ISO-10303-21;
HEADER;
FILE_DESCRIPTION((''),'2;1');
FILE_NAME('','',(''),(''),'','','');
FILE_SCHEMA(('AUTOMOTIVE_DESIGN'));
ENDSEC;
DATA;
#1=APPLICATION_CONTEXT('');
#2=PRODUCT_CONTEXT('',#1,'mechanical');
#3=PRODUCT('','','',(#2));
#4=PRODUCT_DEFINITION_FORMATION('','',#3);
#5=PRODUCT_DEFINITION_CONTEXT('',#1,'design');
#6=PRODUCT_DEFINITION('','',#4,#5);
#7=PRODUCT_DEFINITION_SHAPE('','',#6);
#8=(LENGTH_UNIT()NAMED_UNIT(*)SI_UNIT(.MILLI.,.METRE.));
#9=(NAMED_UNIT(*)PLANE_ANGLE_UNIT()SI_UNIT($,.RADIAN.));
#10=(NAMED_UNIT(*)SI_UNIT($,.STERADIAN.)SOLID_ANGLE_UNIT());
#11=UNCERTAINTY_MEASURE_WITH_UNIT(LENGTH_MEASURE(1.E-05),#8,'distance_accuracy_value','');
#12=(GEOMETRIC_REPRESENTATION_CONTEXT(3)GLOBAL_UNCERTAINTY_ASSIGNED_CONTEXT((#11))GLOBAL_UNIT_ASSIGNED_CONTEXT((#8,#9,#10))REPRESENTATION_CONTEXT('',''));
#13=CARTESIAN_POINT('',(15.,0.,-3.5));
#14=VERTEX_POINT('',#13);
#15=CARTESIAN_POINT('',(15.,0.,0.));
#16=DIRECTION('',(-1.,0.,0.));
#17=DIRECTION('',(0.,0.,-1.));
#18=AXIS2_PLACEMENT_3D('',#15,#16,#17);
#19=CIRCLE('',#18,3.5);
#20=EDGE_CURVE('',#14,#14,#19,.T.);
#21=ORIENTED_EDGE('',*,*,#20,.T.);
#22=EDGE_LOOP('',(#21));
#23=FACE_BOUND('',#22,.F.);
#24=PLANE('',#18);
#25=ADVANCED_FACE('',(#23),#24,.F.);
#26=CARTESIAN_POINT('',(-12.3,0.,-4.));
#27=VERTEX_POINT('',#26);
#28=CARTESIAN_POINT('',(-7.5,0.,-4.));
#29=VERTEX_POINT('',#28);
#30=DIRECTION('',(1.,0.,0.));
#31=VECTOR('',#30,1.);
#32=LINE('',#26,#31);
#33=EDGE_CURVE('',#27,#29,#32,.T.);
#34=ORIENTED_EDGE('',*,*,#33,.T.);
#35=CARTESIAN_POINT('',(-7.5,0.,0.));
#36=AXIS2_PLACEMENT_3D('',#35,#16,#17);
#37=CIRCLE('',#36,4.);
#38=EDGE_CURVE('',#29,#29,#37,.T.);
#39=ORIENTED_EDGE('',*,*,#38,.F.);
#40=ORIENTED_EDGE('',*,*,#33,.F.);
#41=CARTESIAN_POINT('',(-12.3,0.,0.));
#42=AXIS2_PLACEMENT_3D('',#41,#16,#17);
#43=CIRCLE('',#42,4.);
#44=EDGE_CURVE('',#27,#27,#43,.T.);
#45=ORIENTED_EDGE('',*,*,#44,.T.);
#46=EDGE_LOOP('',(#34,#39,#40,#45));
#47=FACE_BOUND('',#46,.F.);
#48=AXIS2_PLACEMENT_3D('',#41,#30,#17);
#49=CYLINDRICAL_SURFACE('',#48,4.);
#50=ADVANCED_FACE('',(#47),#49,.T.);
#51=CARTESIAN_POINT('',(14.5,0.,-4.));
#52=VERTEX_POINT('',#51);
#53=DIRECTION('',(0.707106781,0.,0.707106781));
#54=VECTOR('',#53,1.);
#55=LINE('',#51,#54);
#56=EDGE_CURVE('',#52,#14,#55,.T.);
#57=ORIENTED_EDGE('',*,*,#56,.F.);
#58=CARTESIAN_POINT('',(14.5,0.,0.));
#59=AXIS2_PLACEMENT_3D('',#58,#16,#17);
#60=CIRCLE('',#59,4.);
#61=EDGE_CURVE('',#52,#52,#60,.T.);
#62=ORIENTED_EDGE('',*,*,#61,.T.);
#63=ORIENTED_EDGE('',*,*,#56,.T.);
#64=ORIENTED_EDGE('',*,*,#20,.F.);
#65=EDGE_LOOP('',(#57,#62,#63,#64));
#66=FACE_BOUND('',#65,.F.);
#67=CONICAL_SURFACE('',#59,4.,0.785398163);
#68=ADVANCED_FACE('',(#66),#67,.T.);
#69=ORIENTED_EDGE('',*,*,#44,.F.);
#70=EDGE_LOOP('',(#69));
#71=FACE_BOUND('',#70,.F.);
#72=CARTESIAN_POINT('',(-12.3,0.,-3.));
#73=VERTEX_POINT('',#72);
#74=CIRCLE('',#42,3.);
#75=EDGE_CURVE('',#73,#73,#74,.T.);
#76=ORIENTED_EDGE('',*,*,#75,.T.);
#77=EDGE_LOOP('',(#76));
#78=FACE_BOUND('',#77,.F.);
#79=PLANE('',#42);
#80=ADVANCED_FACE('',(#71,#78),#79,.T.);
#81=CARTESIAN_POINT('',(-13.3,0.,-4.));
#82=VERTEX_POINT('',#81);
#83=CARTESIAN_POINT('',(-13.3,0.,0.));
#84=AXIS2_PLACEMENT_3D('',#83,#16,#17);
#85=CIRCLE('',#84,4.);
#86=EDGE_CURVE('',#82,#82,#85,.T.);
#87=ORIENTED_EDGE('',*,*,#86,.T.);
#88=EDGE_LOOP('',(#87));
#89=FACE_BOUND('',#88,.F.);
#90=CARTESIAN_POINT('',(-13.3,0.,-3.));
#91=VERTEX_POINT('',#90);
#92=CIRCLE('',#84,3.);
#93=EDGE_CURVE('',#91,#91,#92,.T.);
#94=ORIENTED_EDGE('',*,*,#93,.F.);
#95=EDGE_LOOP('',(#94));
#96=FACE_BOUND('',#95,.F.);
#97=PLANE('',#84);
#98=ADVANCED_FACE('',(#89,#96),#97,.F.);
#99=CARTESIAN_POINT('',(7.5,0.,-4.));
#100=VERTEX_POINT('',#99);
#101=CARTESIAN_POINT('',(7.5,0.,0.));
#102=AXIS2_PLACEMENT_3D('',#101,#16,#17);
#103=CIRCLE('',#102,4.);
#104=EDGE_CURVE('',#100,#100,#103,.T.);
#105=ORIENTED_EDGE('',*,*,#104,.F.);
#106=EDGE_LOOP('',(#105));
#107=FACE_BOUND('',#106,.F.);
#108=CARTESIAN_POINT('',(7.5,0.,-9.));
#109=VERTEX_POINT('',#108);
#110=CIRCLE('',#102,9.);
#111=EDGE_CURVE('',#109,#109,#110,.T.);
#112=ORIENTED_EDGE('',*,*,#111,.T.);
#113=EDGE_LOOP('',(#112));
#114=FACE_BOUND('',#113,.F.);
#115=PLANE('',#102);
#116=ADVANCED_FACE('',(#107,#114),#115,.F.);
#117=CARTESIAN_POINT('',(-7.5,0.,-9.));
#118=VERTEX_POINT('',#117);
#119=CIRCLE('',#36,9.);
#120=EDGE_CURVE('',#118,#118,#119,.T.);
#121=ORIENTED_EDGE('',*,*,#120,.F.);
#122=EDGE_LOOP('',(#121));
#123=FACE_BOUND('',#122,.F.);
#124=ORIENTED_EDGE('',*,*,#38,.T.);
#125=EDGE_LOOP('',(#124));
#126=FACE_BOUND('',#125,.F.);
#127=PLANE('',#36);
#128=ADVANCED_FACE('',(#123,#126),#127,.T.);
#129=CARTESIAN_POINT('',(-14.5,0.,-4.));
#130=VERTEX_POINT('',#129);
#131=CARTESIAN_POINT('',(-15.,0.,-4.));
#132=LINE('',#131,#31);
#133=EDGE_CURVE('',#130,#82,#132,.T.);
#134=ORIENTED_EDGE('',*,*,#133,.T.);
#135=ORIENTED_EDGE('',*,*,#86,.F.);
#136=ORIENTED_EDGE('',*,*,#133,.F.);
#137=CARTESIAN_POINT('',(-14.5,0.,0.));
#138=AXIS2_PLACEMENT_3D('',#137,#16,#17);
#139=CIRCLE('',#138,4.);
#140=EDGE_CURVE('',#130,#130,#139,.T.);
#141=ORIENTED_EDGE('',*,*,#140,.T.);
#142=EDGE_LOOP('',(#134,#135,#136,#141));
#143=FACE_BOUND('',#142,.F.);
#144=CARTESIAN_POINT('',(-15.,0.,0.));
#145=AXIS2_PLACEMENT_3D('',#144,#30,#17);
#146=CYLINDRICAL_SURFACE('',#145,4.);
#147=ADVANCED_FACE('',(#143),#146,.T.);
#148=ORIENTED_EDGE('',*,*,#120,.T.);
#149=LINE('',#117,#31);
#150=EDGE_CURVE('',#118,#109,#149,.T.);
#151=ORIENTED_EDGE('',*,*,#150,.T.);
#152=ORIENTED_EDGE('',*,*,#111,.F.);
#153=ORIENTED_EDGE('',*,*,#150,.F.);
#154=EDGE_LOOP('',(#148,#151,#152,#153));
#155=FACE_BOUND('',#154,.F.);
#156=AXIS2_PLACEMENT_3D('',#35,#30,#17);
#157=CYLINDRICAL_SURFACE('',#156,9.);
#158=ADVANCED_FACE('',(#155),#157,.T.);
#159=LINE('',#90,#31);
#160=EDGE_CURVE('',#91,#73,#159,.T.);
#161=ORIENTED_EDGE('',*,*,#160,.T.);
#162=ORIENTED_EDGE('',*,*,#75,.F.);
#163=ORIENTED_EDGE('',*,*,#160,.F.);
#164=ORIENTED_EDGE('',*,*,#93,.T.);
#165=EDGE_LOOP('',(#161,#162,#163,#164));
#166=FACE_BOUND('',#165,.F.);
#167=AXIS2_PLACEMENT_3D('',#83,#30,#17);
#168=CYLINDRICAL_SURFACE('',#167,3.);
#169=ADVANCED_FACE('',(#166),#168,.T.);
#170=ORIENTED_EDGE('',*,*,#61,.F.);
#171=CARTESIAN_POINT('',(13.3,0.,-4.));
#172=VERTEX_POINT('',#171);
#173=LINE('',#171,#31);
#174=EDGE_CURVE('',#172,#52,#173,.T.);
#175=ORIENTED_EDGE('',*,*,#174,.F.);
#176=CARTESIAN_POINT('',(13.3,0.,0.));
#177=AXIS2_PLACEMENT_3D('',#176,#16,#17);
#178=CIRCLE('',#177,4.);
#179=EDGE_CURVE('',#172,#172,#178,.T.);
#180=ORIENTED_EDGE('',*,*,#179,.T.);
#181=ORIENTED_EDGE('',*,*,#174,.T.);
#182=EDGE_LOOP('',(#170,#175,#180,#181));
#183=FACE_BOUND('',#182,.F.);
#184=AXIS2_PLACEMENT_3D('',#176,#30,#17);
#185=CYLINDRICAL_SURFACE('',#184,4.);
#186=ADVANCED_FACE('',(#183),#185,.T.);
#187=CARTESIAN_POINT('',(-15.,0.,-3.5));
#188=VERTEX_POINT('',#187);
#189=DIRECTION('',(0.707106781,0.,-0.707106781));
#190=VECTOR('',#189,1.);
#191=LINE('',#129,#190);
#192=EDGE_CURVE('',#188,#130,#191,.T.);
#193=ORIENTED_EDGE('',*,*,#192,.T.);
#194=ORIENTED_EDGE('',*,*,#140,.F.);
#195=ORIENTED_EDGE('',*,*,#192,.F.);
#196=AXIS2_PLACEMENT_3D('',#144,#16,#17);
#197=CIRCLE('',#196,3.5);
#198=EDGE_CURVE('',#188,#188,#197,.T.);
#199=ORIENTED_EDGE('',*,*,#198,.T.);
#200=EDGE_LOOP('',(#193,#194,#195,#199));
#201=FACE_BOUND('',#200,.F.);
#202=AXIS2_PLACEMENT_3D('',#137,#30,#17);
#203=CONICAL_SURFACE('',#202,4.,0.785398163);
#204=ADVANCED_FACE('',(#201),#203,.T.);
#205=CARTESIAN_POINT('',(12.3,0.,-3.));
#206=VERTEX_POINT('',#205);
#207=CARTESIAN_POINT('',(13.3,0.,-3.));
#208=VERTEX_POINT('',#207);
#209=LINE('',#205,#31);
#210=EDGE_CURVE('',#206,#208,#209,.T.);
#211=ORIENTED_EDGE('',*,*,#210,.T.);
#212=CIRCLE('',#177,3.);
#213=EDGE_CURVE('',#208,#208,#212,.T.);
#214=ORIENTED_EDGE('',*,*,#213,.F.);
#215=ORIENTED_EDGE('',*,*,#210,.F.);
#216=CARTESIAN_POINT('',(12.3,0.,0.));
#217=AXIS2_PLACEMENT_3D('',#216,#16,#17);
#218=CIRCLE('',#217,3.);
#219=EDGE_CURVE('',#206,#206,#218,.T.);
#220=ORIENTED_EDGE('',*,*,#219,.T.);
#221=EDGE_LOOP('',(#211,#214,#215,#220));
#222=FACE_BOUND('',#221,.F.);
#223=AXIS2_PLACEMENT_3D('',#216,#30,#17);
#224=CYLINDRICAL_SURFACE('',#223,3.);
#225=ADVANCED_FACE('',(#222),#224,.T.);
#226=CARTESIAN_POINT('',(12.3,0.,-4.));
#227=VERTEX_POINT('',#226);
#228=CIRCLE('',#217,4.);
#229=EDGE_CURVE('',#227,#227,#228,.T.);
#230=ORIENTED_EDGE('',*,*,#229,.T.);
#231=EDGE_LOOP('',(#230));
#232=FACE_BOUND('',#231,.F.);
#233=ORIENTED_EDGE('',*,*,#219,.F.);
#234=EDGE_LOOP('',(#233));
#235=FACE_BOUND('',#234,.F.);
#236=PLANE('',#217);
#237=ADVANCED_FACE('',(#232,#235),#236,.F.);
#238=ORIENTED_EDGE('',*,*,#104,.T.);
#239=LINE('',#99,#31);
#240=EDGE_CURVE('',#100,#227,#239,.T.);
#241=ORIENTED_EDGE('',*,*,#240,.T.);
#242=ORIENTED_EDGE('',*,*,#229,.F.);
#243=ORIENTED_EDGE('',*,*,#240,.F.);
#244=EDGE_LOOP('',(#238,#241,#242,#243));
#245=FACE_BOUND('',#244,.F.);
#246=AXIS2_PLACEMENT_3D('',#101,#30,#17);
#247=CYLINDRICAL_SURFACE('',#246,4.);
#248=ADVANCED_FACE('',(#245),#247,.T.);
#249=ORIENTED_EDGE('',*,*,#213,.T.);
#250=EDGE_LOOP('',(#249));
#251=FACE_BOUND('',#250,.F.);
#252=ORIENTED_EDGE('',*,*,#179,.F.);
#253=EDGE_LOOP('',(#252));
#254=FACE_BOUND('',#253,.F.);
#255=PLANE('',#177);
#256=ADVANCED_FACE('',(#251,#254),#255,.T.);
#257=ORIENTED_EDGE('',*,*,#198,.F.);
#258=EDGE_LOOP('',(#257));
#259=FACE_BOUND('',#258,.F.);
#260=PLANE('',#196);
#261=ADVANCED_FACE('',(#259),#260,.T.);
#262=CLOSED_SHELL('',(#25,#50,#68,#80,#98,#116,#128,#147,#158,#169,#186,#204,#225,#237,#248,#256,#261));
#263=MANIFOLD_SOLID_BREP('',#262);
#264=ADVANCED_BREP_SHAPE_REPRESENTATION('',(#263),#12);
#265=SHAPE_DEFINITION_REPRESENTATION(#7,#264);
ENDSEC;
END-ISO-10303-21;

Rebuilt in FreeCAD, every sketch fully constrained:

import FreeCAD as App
import Part
import Sketcher
from FreeCAD import Vector
Q = App.Units.Quantity


def edges_at(feature, points):
    """Names of the edges that pass closest to the given points."""
    edges = feature.Shape.Edges
    near = lambda p: min(range(len(edges)), key=lambda i: edges[i].distToShape(Part.Vertex(*p))[0])
    return sorted({f"Edge{near(p) + 1}" for p in points})

doc = App.newDocument("Part")
body = doc.addObject("PartDesign::Body", "Body")

sketch1 = body.newObject("Sketcher::SketchObject", "Sketch")
sketch1.AttachmentSupport = (doc.getObject("XZ_Plane"), [""])
sketch1.MapMode = "FlatFace"
sketch1.addGeometry([
    Part.LineSegment(Vector(15, 0, 0), Vector(-15, 0, 0)),
    Part.LineSegment(Vector(-15, 0, 0), Vector(-15, -4, 0)),
    Part.LineSegment(Vector(-15, -4, 0), Vector(-13.3, -4, 0)),
    Part.LineSegment(Vector(-13.3, -4, 0), Vector(-13.3, -3, 0)),
    Part.LineSegment(Vector(-13.3, -3, 0), Vector(-12.3, -3, 0)),
    Part.LineSegment(Vector(-12.3, -3, 0), Vector(-12.3, -4, 0)),
    Part.LineSegment(Vector(-12.3, -4, 0), Vector(-7.5, -4, 0)),
    Part.LineSegment(Vector(-7.5, -4, 0), Vector(-7.5, -9, 0)),
    Part.LineSegment(Vector(-7.5, -9, 0), Vector(7.5, -9, 0)),
    Part.LineSegment(Vector(7.5, -9, 0), Vector(7.5, -4, 0)),
    Part.LineSegment(Vector(7.5, -4, 0), Vector(12.3, -4, 0)),
    Part.LineSegment(Vector(12.3, -4, 0), Vector(12.3, -3, 0)),
    Part.LineSegment(Vector(12.3, -3, 0), Vector(13.3, -3, 0)),
    Part.LineSegment(Vector(13.3, -3, 0), Vector(13.3, -4, 0)),
    Part.LineSegment(Vector(13.3, -4, 0), Vector(15, -4, 0)),
    Part.LineSegment(Vector(15, -4, 0), Vector(15, 0, 0)),
], False)
sketch1.addConstraint([
    Sketcher.Constraint("Coincident", 0, 2, 1, 1),
    Sketcher.Constraint("Coincident", 1, 2, 2, 1),
    Sketcher.Constraint("Coincident", 2, 2, 3, 1),
    Sketcher.Constraint("Coincident", 3, 2, 4, 1),
    Sketcher.Constraint("Coincident", 4, 2, 5, 1),
    Sketcher.Constraint("Coincident", 5, 2, 6, 1),
    Sketcher.Constraint("Coincident", 6, 2, 7, 1),
    Sketcher.Constraint("Coincident", 7, 2, 8, 1),
    Sketcher.Constraint("Coincident", 8, 2, 9, 1),
    Sketcher.Constraint("Coincident", 9, 2, 10, 1),
    Sketcher.Constraint("Coincident", 10, 2, 11, 1),
    Sketcher.Constraint("Coincident", 11, 2, 12, 1),
    Sketcher.Constraint("Coincident", 12, 2, 13, 1),
    Sketcher.Constraint("Coincident", 13, 2, 14, 1),
    Sketcher.Constraint("Coincident", 14, 2, 15, 1),
    Sketcher.Constraint("Coincident", 15, 2, 0, 1),
    Sketcher.Constraint("Horizontal", 0),
    Sketcher.Constraint("Vertical", 1),
    Sketcher.Constraint("Horizontal", 2),
    Sketcher.Constraint("Vertical", 3),
    Sketcher.Constraint("Horizontal", 4),
    Sketcher.Constraint("Vertical", 5),
    Sketcher.Constraint("Horizontal", 6),
    Sketcher.Constraint("Vertical", 7),
    Sketcher.Constraint("Horizontal", 8),
    Sketcher.Constraint("Vertical", 9),
    Sketcher.Constraint("Horizontal", 10),
    Sketcher.Constraint("Vertical", 11),
    Sketcher.Constraint("Horizontal", 12),
    Sketcher.Constraint("Vertical", 13),
    Sketcher.Constraint("Horizontal", 14),
    Sketcher.Constraint("Vertical", 15),
    Sketcher.Constraint("Symmetric", 0, 2, 15, 2, -1, 1),
    Sketcher.Constraint("Symmetric", 6, 2, 9, 2, -2),
    Sketcher.Constraint("Symmetric", 4, 2, 11, 2, -2),
    Sketcher.Constraint("Symmetric", 2, 2, 13, 2, -2),
    Sketcher.Constraint("Horizontal", 2, 2, 5, 2),
    Sketcher.Constraint("Equal", 12, 3),
    Sketcher.Constraint("DistanceX", 0, 2, 0, 1, Q("30 mm")),
    Sketcher.Constraint("DistanceX", 4, 1, 4, 2, Q("1 mm")),
    Sketcher.Constraint("DistanceX", 8, 1, 8, 2, Q("15 mm")),
    Sketcher.Constraint("DistanceY", 1, 2, 1, 1, Q("4 mm")),
    Sketcher.Constraint("DistanceY", 7, 2, 7, 1, Q("5 mm")),
    Sketcher.Constraint("DistanceX", 2, 1, 2, 2, Q("1.7 mm")),
])
revolution = body.newObject("PartDesign::Revolution", "Revolution")
revolution.Profile = sketch1
revolution.ReferenceAxis = (sketch1, ["H_Axis"])
revolution.Angle = 360
doc.recompute()

chamfer = body.newObject("PartDesign::Chamfer", "Chamfer")
chamfer.Base = (revolution, edges_at(revolution, [(15, 0, 4), (-15, 0, 4)]))
chamfer.ChamferType = "Two distances"
chamfer.Size = 0.5
chamfer.Size2 = 0.5

doc.recompute()
